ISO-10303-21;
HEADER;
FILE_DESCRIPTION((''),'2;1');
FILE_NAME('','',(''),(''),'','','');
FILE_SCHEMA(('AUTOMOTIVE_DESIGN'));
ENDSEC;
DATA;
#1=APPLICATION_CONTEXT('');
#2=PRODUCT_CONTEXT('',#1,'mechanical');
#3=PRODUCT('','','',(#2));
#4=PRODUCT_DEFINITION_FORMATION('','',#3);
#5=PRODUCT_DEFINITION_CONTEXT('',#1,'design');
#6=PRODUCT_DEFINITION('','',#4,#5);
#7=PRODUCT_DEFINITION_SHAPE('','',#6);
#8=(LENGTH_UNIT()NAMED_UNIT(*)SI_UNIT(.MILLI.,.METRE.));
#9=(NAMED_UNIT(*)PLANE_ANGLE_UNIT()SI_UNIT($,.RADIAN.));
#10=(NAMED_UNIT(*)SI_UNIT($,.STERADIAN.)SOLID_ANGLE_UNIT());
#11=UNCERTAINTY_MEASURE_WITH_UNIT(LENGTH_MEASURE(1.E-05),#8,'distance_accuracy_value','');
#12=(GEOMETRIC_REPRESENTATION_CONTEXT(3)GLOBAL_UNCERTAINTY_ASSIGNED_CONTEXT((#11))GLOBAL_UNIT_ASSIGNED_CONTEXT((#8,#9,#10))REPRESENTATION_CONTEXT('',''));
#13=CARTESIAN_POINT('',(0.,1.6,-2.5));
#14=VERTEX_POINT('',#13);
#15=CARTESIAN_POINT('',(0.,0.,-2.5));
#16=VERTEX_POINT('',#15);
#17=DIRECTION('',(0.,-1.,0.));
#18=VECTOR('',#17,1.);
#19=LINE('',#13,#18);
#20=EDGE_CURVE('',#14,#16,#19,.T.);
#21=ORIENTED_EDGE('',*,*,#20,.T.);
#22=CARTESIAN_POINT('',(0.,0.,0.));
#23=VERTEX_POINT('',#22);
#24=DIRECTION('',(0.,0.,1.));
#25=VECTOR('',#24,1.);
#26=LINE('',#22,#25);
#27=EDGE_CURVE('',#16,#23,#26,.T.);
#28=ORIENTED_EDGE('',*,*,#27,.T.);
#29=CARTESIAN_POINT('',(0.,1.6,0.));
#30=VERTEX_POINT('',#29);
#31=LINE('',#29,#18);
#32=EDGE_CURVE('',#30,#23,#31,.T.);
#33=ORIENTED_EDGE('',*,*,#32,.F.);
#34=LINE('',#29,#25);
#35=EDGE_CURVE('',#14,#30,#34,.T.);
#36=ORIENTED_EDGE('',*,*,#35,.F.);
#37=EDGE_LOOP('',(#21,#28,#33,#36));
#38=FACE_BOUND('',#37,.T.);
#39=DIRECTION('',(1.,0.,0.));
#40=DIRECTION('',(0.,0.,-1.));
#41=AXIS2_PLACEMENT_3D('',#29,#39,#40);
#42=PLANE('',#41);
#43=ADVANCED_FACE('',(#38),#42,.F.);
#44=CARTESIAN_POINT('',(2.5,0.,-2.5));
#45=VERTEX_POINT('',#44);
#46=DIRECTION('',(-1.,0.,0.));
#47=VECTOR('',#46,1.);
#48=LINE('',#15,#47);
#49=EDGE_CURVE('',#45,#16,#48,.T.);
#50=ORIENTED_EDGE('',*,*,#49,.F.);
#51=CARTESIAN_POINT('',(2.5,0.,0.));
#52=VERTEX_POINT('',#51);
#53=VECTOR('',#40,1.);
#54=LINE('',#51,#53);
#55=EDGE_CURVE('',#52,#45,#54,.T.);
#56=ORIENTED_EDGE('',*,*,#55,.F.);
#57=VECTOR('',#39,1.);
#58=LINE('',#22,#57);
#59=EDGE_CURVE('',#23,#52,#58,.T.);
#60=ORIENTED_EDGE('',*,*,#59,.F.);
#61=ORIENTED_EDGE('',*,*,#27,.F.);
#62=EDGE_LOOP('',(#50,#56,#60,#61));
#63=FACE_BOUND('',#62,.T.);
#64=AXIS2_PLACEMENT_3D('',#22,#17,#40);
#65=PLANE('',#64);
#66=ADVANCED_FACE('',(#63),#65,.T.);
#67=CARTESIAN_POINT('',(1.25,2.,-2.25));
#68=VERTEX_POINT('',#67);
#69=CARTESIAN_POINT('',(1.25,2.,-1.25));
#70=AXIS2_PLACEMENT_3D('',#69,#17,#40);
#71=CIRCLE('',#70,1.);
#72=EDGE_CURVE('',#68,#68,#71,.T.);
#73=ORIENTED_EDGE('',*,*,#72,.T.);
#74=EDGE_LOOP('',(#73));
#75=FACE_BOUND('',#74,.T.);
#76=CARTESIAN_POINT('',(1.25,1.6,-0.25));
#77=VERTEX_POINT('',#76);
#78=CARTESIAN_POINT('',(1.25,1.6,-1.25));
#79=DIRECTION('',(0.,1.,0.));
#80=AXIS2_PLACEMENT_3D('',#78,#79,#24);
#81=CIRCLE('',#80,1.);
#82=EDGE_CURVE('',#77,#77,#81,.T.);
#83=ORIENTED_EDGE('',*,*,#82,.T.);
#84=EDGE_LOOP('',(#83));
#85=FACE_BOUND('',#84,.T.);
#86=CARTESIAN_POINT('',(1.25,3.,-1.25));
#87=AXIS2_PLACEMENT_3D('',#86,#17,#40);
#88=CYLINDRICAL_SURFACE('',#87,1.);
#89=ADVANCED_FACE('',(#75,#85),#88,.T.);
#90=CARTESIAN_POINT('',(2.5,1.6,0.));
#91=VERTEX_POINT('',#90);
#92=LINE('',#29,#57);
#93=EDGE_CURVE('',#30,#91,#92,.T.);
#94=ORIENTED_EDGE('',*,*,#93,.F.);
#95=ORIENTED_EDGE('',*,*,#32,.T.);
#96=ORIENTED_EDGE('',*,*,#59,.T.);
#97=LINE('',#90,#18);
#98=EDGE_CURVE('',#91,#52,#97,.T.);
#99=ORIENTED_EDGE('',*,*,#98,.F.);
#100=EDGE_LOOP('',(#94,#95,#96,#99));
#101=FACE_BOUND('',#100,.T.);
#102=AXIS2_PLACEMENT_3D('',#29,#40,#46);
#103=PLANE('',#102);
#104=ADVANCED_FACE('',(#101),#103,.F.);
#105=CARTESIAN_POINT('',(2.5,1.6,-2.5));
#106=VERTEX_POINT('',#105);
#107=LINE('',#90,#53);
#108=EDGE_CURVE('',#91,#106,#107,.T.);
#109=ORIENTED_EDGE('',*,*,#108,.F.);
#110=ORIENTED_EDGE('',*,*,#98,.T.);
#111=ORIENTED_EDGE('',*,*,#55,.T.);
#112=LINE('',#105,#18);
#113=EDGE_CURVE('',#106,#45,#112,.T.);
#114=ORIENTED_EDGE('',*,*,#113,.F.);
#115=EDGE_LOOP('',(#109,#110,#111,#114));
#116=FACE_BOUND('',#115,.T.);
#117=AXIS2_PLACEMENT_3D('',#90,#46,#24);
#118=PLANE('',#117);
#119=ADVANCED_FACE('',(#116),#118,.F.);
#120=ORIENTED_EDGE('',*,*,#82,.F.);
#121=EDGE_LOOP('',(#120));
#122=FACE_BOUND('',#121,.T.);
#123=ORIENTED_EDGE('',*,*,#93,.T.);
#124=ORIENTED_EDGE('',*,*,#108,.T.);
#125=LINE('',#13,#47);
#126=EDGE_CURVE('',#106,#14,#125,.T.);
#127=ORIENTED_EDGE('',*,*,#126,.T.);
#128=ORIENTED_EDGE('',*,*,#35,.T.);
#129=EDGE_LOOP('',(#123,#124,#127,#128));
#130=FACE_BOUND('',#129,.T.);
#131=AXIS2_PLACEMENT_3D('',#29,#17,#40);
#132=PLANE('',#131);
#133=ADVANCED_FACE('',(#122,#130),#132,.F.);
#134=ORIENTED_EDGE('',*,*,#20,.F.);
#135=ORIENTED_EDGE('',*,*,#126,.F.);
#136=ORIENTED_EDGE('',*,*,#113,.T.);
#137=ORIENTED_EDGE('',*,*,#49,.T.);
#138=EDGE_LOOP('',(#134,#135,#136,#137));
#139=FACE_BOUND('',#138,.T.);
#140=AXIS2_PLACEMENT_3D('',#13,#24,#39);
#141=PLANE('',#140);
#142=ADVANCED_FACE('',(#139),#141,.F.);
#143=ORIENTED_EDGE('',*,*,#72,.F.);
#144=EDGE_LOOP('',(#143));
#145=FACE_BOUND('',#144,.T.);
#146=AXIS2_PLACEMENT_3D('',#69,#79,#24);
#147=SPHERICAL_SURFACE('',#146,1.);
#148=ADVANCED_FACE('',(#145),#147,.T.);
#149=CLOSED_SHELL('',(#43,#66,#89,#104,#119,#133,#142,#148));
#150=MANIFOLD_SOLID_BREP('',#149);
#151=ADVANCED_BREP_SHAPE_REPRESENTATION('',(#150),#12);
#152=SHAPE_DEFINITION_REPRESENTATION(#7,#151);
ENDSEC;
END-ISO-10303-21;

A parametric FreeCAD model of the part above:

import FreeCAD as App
import Part
import Sketcher
from FreeCAD import Vector


def edges_at(feature, points):
    """Names of the edges that pass closest to the given points."""
    edges = feature.Shape.Edges
    near = lambda p: min(range(len(edges)), key=lambda i: edges[i].distToShape(Part.Vertex(*p))[0])
    return sorted({f"Edge{near(p) + 1}" for p in points})


def add_polygon(sketch, points):
    """Adds a closed chain of lines whose ends are joined by coincident constraints."""
    first, n = sketch.GeometryCount, len(points)
    for a, b in zip(points, points[1:] + points[:1]):
        sketch.addGeometry(Part.LineSegment(App.Vector(*a, 0), App.Vector(*b, 0)), False)
    for i in range(n):
        sketch.addConstraint(Sketcher.Constraint("Coincident", first + i, 2, first + (i + 1) % n, 1))

doc = App.newDocument("Part")
params = doc.addObject("Spreadsheet::Sheet", "Params")
for row, (alias, value) in enumerate([
    ("sketch1_width", "2.5 mm"),
    ("pad1_length", "1.6 mm"),
    ("sketch2_diameter", "2 mm"),
    ("pad2_length", "1.4 mm"),
    ("fillet_radius", "1 mm"),
], start=1):
    params.set(f"A{row}", alias)
    params.set(f"B{row}", "=" + value)
    params.setAlias(f"B{row}", alias)

body = doc.addObject("PartDesign::Body", "Body")

sketch1 = body.newObject("Sketcher::SketchObject", "Sketch")
sketch1.AttachmentSupport = (doc.getObject("XZ_Plane"), [""])
sketch1.MapMode = "FlatFace"
add_polygon(sketch1, [(0, -2.5), (0, 0), (2.5, 0), (2.5, -2.5)])
sketch1.addConstraint([
    Sketcher.Constraint("Vertical", 0),
    Sketcher.Constraint("Horizontal", 1),
    Sketcher.Constraint("Vertical", 2),
    Sketcher.Constraint("Horizontal", 3),
    Sketcher.Constraint("Coincident", 0, 2, -1, 1),
    Sketcher.Constraint("Equal", 3, 0),
    Sketcher.Constraint("DistanceX", 1, 1, 1, 2, 2.5),
])
sketch1.setExpression("Constraints[10]", "Params.sketch1_width")
pad1 = body.newObject("PartDesign::Pad", "Pad")
pad1.Profile = sketch1
pad1.setExpression("Length", "Params.pad1_length")
pad1.Reversed = True

sketch2 = body.newObject("Sketcher::SketchObject", "Sketch001")
sketch2.AttachmentSupport = (doc.getObject("XZ_Plane"), [""])
sketch2.MapMode = "FlatFace"
sketch2.AttachmentOffset = App.Placement(Vector(0, 0, -1.6), App.Rotation())
sketch2.addGeometry(Part.Circle(Vector(1.25, -1.25, 0), Vector(0, 0, 1), 1), False)
sketch2.addConstraint([
    Sketcher.Constraint("Diameter", 0, 2.0),
    Sketcher.Constraint("DistanceX", -1, 1, 0, 3, 1.25),
    Sketcher.Constraint("DistanceY", 0, 3, -1, 1, 1.25),
])
sketch2.setExpression("Constraints[0]", "Params.sketch2_diameter")
pad2 = body.newObject("PartDesign::Pad", "Pad001")
pad2.Profile = sketch2
pad2.setExpression("Length", "Params.pad2_length")
pad2.Reversed = True
doc.recompute()

fillet = body.newObject("PartDesign::Fillet", "Fillet")
fillet.Base = (pad2, edges_at(pad2, [(1.25, 3, -2.25)]))
fillet.setExpression("Radius", "Params.fillet_radius")

doc.recompute()
